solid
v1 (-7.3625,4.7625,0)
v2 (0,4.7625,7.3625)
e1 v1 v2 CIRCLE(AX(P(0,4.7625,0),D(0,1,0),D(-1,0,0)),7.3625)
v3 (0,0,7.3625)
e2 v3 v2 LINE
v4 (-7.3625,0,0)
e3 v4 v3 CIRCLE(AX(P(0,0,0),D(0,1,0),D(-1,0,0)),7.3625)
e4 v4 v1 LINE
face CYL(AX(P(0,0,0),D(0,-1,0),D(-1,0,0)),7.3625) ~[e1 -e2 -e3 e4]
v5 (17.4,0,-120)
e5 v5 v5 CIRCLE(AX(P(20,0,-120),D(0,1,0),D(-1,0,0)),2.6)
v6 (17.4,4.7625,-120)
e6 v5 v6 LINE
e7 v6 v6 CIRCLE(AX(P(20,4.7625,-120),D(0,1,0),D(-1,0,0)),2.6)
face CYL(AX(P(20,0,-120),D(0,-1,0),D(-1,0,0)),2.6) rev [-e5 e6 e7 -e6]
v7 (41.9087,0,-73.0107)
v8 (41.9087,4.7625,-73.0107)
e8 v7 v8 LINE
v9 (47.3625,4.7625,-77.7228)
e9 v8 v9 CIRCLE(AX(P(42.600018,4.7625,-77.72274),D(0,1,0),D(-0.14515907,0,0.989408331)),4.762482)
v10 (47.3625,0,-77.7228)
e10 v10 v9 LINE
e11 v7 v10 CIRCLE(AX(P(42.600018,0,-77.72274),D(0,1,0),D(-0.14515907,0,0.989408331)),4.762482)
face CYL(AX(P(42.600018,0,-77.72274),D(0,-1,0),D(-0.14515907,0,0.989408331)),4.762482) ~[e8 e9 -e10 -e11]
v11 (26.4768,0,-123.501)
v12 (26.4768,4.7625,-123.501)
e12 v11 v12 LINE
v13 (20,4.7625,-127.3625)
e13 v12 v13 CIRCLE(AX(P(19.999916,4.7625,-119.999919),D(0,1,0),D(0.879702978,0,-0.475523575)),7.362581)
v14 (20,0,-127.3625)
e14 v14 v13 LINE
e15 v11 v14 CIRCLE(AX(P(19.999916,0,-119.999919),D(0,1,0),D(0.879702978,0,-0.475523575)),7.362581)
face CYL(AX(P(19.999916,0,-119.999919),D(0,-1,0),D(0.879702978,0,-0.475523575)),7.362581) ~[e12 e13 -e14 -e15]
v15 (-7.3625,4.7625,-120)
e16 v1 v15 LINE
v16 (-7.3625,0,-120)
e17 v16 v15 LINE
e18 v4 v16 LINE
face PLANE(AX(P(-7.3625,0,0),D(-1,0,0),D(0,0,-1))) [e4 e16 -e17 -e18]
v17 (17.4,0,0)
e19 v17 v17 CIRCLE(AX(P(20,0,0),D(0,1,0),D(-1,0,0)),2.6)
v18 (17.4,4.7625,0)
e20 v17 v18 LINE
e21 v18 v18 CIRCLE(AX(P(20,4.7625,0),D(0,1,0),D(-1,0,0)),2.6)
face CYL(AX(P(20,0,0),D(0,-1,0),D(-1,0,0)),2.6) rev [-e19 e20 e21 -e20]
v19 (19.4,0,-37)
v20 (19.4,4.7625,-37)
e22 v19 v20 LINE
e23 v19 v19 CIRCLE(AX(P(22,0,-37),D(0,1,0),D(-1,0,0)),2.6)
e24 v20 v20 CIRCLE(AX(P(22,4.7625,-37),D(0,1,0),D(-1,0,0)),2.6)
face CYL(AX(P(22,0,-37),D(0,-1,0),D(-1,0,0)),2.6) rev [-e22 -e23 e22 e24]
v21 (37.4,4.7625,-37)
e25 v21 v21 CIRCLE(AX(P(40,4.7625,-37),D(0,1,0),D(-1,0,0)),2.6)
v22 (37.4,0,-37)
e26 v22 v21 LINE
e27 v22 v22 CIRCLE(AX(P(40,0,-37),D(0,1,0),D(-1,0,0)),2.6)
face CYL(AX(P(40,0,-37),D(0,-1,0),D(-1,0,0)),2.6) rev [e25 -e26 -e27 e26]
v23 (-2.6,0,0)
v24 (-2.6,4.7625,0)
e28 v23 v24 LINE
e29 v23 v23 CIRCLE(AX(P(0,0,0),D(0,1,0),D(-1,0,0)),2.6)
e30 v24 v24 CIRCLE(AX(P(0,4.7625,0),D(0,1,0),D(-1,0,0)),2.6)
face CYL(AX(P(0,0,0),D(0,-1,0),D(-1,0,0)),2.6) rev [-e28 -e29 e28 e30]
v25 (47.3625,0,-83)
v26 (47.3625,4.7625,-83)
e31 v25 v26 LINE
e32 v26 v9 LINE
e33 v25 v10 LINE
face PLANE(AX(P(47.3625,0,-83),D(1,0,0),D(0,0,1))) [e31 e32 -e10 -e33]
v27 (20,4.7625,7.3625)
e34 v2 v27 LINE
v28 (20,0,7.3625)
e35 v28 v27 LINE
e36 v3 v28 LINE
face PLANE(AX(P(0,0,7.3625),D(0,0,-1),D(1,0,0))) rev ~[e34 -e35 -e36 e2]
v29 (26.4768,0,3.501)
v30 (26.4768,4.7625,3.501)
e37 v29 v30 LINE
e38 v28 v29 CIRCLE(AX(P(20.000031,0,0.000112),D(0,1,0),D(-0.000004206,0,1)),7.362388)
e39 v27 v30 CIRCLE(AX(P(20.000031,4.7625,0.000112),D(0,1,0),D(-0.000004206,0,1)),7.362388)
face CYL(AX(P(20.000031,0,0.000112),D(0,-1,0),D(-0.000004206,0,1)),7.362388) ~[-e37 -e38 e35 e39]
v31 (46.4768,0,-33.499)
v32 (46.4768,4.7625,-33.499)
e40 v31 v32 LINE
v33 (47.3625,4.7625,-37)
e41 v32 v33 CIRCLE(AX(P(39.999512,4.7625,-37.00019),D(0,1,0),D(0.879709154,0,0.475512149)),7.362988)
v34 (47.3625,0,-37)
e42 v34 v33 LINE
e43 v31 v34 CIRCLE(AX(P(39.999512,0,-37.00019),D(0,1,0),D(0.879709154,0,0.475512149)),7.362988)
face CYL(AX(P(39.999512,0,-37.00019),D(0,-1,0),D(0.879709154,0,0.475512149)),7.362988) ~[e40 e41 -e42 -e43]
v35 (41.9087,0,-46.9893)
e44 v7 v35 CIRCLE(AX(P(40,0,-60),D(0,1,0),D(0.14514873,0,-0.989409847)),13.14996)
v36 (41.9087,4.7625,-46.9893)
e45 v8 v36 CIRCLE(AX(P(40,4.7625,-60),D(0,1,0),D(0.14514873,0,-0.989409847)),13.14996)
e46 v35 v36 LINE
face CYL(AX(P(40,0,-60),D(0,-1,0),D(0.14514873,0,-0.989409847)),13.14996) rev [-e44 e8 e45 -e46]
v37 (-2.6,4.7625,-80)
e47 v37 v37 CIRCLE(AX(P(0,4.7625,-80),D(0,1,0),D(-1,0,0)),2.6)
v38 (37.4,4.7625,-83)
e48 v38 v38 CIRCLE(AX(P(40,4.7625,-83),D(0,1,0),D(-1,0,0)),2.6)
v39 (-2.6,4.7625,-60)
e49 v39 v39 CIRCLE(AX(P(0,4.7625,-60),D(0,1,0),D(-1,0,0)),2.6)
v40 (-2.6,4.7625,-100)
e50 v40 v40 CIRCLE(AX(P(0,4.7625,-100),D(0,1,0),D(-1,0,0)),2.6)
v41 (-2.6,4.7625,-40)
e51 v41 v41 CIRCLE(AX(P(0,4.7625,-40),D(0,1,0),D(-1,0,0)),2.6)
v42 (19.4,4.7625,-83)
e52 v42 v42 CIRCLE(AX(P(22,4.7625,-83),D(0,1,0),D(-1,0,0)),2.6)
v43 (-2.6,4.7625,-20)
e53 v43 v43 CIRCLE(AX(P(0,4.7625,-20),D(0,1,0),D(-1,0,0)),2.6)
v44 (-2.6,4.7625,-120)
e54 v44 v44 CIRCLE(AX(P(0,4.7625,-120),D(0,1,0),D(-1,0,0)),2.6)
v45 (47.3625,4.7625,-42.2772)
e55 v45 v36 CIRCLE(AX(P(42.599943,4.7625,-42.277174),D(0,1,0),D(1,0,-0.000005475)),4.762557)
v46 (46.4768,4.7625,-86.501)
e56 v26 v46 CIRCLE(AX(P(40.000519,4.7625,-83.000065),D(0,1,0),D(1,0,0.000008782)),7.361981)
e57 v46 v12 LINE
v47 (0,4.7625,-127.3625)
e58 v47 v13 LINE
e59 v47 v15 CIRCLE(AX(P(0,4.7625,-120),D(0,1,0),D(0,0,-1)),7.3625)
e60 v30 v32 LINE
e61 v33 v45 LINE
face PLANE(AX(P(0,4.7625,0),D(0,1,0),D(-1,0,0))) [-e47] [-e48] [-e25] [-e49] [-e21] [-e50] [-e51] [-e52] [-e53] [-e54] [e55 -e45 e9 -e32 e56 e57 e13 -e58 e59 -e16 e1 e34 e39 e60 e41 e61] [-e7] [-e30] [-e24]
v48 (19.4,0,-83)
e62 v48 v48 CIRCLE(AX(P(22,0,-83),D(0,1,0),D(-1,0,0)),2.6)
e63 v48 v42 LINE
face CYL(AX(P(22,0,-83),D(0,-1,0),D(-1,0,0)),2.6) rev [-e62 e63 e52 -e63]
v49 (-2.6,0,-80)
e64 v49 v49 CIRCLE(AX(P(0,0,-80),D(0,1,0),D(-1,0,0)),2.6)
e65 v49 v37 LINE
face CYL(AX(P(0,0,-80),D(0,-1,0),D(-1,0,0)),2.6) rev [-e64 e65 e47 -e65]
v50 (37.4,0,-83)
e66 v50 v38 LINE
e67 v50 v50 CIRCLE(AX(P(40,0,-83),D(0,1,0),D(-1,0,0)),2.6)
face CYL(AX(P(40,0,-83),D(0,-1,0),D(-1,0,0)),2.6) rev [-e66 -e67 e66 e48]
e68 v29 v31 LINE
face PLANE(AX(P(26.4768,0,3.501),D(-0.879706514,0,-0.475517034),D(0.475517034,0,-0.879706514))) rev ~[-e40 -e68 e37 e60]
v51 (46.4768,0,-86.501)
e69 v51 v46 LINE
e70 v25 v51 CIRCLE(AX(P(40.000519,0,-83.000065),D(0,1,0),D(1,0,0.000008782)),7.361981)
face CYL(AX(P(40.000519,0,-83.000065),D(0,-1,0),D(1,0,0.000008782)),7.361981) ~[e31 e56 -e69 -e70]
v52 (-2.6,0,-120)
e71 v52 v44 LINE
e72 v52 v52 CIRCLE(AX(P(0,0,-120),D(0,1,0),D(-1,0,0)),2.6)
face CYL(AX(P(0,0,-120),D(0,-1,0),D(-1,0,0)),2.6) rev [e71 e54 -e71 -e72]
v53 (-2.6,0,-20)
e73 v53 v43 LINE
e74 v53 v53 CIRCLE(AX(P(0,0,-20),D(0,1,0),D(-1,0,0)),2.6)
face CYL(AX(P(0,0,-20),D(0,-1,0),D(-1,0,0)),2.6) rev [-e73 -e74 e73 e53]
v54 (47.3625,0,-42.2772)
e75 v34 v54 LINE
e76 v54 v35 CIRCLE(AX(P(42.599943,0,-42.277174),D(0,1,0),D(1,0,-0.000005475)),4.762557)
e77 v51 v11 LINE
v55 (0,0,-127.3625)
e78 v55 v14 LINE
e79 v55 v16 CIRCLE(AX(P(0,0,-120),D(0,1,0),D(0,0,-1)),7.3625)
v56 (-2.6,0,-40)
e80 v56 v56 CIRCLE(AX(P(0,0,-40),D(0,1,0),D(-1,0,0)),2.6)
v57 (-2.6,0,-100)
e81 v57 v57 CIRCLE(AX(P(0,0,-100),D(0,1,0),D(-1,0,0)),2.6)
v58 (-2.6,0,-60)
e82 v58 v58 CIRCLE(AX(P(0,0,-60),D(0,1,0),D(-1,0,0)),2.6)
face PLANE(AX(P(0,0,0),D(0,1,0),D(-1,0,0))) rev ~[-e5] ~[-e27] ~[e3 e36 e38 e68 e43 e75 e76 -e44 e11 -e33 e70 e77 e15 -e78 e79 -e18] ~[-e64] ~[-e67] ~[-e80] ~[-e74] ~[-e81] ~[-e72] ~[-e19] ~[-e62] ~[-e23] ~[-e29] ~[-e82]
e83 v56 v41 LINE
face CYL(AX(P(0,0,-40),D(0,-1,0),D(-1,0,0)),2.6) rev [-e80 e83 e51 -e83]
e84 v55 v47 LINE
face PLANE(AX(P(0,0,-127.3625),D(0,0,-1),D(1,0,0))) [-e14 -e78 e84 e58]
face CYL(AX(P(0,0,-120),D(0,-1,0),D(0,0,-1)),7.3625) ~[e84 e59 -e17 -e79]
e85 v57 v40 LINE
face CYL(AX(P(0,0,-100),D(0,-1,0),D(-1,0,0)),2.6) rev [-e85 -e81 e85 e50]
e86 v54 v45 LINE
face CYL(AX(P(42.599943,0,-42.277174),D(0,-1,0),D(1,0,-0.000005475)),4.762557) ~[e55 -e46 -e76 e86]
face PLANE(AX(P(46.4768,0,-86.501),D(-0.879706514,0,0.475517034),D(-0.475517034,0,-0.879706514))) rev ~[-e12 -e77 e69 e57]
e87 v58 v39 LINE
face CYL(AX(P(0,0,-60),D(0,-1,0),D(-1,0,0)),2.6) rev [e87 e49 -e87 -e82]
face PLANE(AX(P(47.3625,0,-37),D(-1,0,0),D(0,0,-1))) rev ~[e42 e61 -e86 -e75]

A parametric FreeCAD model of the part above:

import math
import FreeCAD as App
import Part
import Sketcher

V = App.Vector
Q = App.Units.Quantity

doc = App.newDocument("Part")
body = doc.addObject("PartDesign::Body", "Body")

# Sketch on XZ plane
sketch1 = body.newObject("Sketcher::SketchObject", "Sketch")
sketch1.AttachmentSupport = (doc.getObject("XZ_Plane"), [""])
sketch1.MapMode = "FlatFace"
sketch1.addGeometry(Part.LineSegment(V(-7.4, -120, 0), V(-7.4, 0, 0)), False)
sketch1.addGeometry(Part.ArcOfCircle(Part.Circle(V(0, 0, 0), V(0, 0, 1), 7.4), math.radians(90), math.radians(180)), False)
sketch1.addGeometry(Part.LineSegment(V(0, 7.4, 0), V(20, 7.4, 0)), False)
sketch1.addGeometry(Part.ArcOfCircle(Part.Circle(V(20, 0, 0), V(0, 0, 1), 7.4), math.radians(28), math.radians(90)), False)
sketch1.addGeometry(Part.LineSegment(V(26.5, 3.5, 0), V(46.5, -33.5, 0)), False)
sketch1.addGeometry(Part.ArcOfCircle(Part.Circle(V(40, -37, 0), V(0, 0, 1), 7.4), math.radians(0), math.radians(28)), False)
sketch1.addGeometry(Part.LineSegment(V(47.4, -37, 0), V(47.4, -42.3, 0)), False)
sketch1.addGeometry(Part.ArcOfCircle(Part.Circle(V(42.6, -42.3, 0), V(0, 0, 1), 4.8), math.radians(-98), math.radians(0)), False)
sketch1.addGeometry(Part.ArcOfCircle(Part.Circle(V(40, -60, 0), V(0, 0, 1), 13.1), math.radians(82), math.radians(278)), False)
sketch1.addGeometry(Part.ArcOfCircle(Part.Circle(V(42.6, -77.7, 0), V(0, 0, 1), 4.8), math.radians(0), math.radians(98)), False)
sketch1.addGeometry(Part.LineSegment(V(47.4, -77.7, 0), V(47.4, -83, 0)), False)
sketch1.addGeometry(Part.ArcOfCircle(Part.Circle(V(40, -83, 0), V(0, 0, 1), 7.4), math.radians(-28), math.radians(0)), False)
sketch1.addGeometry(Part.LineSegment(V(46.5, -86.5, 0), V(26.5, -123.5, 0)), False)
sketch1.addGeometry(Part.ArcOfCircle(Part.Circle(V(20, -120, 0), V(0, 0, 1), 7.4), math.radians(-90), math.radians(-28)), False)
sketch1.addGeometry(Part.LineSegment(V(20, -127.4, 0), V(0, -127.4, 0)), False)
sketch1.addGeometry(Part.ArcOfCircle(Part.Circle(V(0, -120, 0), V(0, 0, 1), 7.4), math.radians(180), math.radians(270)), False)
sketch1.addGeometry(Part.Circle(V(40, -83, 0), V(0, 0, 1), 2.6), False)
sketch1.addGeometry(Part.Circle(V(22, -83, 0), V(0, 0, 1), 2.6), False)
sketch1.addGeometry(Part.Circle(V(20, -120, 0), V(0, 0, 1), 2.6), False)
sketch1.addGeometry(Part.Circle(V(0, -120, 0), V(0, 0, 1), 2.6), False)
sketch1.addGeometry(Part.Circle(V(0, -100, 0), V(0, 0, 1), 2.6), False)
sketch1.addGeometry(Part.Circle(V(0, -80, 0), V(0, 0, 1), 2.6), False)
sketch1.addGeometry(Part.Circle(V(0, -60, 0), V(0, 0, 1), 2.6), False)
sketch1.addGeometry(Part.Circle(V(40, -37, 0), V(0, 0, 1), 2.6), False)
sketch1.addGeometry(Part.Circle(V(22, -37, 0), V(0, 0, 1), 2.6), False)
sketch1.addGeometry(Part.Circle(V(0, -40, 0), V(0, 0, 1), 2.6), False)
sketch1.addGeometry(Part.Circle(V(20, 0, 0), V(0, 0, 1), 2.6), False)
sketch1.addGeometry(Part.Circle(V(0, -20, 0), V(0, 0, 1), 2.6), False)
sketch1.addGeometry(Part.Circle(V(0, 0, 0), V(0, 0, 1), 2.6), False)
sketch1.addConstraint(Sketcher.Constraint("Tangent", 0, 2, 1, 2))
sketch1.addConstraint(Sketcher.Constraint("Tangent", 1, 1, 2, 1))
sketch1.addConstraint(Sketcher.Constraint("Tangent", 2, 2, 3, 2))
sketch1.addConstraint(Sketcher.Constraint("Tangent", 3, 1, 4, 1))
sketch1.addConstraint(Sketcher.Constraint("Tangent", 4, 2, 5, 2))
sketch1.addConstraint(Sketcher.Constraint("Tangent", 5, 1, 6, 1))
sketch1.addConstraint(Sketcher.Constraint("Tangent", 6, 2, 7, 2))
sketch1.addConstraint(Sketcher.Constraint("Tangent", 7, 1, 8, 1))
sketch1.addConstraint(Sketcher.Constraint("Tangent", 8, 2, 9, 2))
sketch1.addConstraint(Sketcher.Constraint("Tangent", 9, 1, 10, 1))
sketch1.addConstraint(Sketcher.Constraint("Tangent", 10, 2, 11, 2))
sketch1.addConstraint(Sketcher.Constraint("Tangent", 11, 1, 12, 1))
sketch1.addConstraint(Sketcher.Constraint("Tangent", 12, 2, 13, 2))
sketch1.addConstraint(Sketcher.Constraint("Tangent", 13, 1, 14, 1))
sketch1.addConstraint(Sketcher.Constraint("Tangent", 14, 2, 15, 2))
sketch1.addConstraint(Sketcher.Constraint("Tangent", 15, 1, 0, 1))
sketch1.addConstraint(Sketcher.Constraint("Vertical", 0))
sketch1.addConstraint(Sketcher.Constraint("Horizontal", 2))
sketch1.addConstraint(Sketcher.Constraint("Vertical", 6))
sketch1.addConstraint(Sketcher.Constraint("Vertical", 10))
sketch1.addConstraint(Sketcher.Constraint("Horizontal", 14))
sketch1.addConstraint(Sketcher.Constraint("Coincident", 1, 3, -1, 1))
sketch1.addConstraint(Sketcher.Constraint("Coincident", 28, 3, -1, 1))
sketch1.addConstraint(Sketcher.Constraint("Coincident", 16, 3, 11, 3))
sketch1.addConstraint(Sketcher.Constraint("Coincident", 18, 3, 13, 3))
sketch1.addConstraint(Sketcher.Constraint("Coincident", 19, 3, 15, 3))
sketch1.addConstraint(Sketcher.Constraint("Coincident", 23, 3, 5, 3))
sketch1.addConstraint(Sketcher.Constraint("Coincident", 26, 3, 3, 3))
sketch1.addConstraint(Sketcher.Constraint("Equal", 1, 3))
sketch1.addConstraint(Sketcher.Constraint("Equal", 3, 5))
sketch1.addConstraint(Sketcher.Constraint("Equal", 7, 9))
sketch1.addConstraint(Sketcher.Constraint("Equal", 5, 11))
sketch1.addConstraint(Sketcher.Constraint("Equal", 11, 13))
sketch1.addConstraint(Sketcher.Constraint("Equal", 13, 15))
sketch1.addConstraint(Sketcher.Constraint("Equal", 16, 17))
sketch1.addConstraint(Sketcher.Constraint("Equal", 17, 18))
sketch1.addConstraint(Sketcher.Constraint("Equal", 18, 19))
sketch1.addConstraint(Sketcher.Constraint("Equal", 19, 20))
sketch1.addConstraint(Sketcher.Constraint("Equal", 20, 21))
sketch1.addConstraint(Sketcher.Constraint("Equal", 21, 22))
sketch1.addConstraint(Sketcher.Constraint("Equal", 22, 23))
sketch1.addConstraint(Sketcher.Constraint("Equal", 23, 24))
sketch1.addConstraint(Sketcher.Constraint("Equal", 24, 25))
sketch1.addConstraint(Sketcher.Constraint("Equal", 25, 26))
sketch1.addConstraint(Sketcher.Constraint("Equal", 26, 27))
sketch1.addConstraint(Sketcher.Constraint("Equal", 27, 28))
sketch1.addConstraint(Sketcher.Constraint("PointOnObject", 20, 3, -2))
sketch1.addConstraint(Sketcher.Constraint("PointOnObject", 21, 3, -2))
sketch1.addConstraint(Sketcher.Constraint("PointOnObject", 22, 3, -2))
sketch1.addConstraint(Sketcher.Constraint("PointOnObject", 25, 3, -2))
sketch1.addConstraint(Sketcher.Constraint("PointOnObject", 27, 3, -2))
sketch1.addConstraint(Sketcher.Constraint("Horizontal", 16, 3, 17, 3))
sketch1.addConstraint(Sketcher.Constraint("Horizontal", 8, 3, 22, 3))
sketch1.addConstraint(Sketcher.Constraint("Horizontal", 23, 3, 24, 3))
sketch1.addConstraint(Sketcher.Constraint("Vertical", 5, 3, 8, 3))
sketch1.addConstraint(Sketcher.Constraint("Vertical", 7, 3, 9, 3))
sketch1.addConstraint(Sketcher.Constraint("Vertical", 3, 3, 13, 3))
sketch1.addConstraint(Sketcher.Constraint("Vertical", 17, 3, 24, 3))
sketch1.addConstraint(Sketcher.Constraint("Vertical", 4, 2, 11, 1))
sketch1.addConstraint(Sketcher.Constraint("Equal", 6, 10))
sketch1.addConstraint(Sketcher.Constraint("Radius", 7, Q("0.1875 in")))
sketch1.addConstraint(Sketcher.Constraint("Diameter", 16, 5.2))
sketch1.addConstraint(Sketcher.Constraint("Radius", 8, 13.15))
sketch1.addConstraint(Sketcher.Constraint("DistanceX", 2, 1, 2, 2, Q("0.7874 in")))
sketch1.addConstraint(Sketcher.Constraint("DistanceY", 5, 3, -1, 1, Q("1.4567 in")))
sketch1.addConstraint(Sketcher.Constraint("DistanceY", 27, 3, -1, 1, Q("0.7874 in")))
sketch1.addConstraint(Sketcher.Constraint("DistanceX", 3, 3, 5, 3, Q("0.7874 in")))
sketch1.addConstraint(Sketcher.Constraint("DistanceY", 8, 3, 5, 3, Q("0.9055 in")))
sketch1.addConstraint(Sketcher.Constraint("DistanceY", 15, 3, 20, 3, Q("0.7874 in")))
sketch1.addConstraint(Sketcher.Constraint("DistanceY", 20, 3, 21, 3, Q("0.7874 in")))
sketch1.addConstraint(Sketcher.Constraint("DistanceY", 22, 3, 25, 3, Q("0.7874 in")))
sketch1.addConstraint(Sketcher.Constraint("Radius", 1, 7.3625))
sketch1.addConstraint(Sketcher.Constraint("DistanceX", 17, 3, 11, 3, 18.0))
pad1 = body.newObject("PartDesign::Pad", "Pad")
pad1.Profile = sketch1
pad1.Length = Q("0.1875 in")
pad1.Reversed = True

doc.recompute()
